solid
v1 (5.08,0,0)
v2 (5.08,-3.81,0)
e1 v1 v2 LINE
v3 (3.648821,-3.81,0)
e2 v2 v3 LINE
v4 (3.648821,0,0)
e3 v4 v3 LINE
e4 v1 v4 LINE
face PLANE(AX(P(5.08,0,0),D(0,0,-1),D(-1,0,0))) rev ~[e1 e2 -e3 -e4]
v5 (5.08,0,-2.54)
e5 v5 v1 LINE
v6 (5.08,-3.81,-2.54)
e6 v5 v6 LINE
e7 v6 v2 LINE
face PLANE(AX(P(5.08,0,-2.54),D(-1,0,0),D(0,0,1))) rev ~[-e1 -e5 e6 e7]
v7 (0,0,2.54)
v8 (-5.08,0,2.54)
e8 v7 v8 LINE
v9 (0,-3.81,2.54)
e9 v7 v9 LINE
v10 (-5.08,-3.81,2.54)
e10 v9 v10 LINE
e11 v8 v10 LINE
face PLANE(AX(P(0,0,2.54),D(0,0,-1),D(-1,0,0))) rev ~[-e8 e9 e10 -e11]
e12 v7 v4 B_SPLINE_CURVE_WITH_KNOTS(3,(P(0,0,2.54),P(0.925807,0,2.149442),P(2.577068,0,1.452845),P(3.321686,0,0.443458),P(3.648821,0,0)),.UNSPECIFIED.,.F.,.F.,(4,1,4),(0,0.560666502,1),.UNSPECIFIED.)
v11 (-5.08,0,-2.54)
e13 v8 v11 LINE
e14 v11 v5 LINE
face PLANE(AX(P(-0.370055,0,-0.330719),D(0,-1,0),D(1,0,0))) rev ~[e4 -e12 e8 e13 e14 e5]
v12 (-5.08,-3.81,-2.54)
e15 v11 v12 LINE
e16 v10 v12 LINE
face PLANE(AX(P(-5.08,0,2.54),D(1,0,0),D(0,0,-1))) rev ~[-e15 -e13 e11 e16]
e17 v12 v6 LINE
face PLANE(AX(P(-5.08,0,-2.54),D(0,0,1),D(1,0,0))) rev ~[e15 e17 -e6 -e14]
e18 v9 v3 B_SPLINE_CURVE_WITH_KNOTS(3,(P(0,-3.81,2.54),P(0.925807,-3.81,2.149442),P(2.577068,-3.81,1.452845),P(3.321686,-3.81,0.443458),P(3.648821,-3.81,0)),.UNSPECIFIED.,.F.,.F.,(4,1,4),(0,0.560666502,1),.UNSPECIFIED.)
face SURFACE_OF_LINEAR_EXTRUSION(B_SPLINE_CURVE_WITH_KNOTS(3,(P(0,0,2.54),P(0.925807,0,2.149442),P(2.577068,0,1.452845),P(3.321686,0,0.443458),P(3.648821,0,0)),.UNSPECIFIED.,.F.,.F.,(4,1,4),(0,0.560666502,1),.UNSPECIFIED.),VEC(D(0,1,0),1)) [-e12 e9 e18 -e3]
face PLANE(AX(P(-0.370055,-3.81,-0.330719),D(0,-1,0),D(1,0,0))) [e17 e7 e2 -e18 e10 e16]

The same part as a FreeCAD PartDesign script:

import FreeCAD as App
import Part
import Sketcher
from FreeCAD import Vector
Q = App.Units.Quantity

doc = App.newDocument("Part")
body = doc.addObject("PartDesign::Body", "Body")

sketch1 = body.newObject("Sketcher::SketchObject", "Sketch")
sketch1.AttachmentSupport = (doc.getObject("XZ_Plane"), [""])
sketch1.MapMode = "FlatFace"
sketch1.addGeometry([
    Part.LineSegment(Vector(-5.08, -2.54, 0), Vector(5.08, -2.54, 0)),
    Part.LineSegment(Vector(5.08, -2.54, 0), Vector(5.08, 0, 0)),
    Part.LineSegment(Vector(5.08, 0, 0), Vector(3.648821, 0, 0)),
    Part.BSplineCurve([Vector(0, 2.54, 0), Vector(0.925807, 2.149442, 0), Vector(2.577068, 1.452845, 0), Vector(3.321686, 0.443458, 0), Vector(3.648821, 0, 0)], [4, 1, 4], [0, 0.560666502, 1], False, 3, [1, 1, 1, 1, 1], False),
    Part.LineSegment(Vector(0, 2.54, 0), Vector(-5.08, 2.54, 0)),
    Part.LineSegment(Vector(-5.08, 2.54, 0), Vector(-5.08, -2.54, 0)),
], False)
sketch1.addConstraint([
    Sketcher.Constraint("Block", 3),
    Sketcher.Constraint("Coincident", 0, 2, 1, 1),
    Sketcher.Constraint("Coincident", 1, 2, 2, 1),
    Sketcher.Constraint("Coincident", 2, 2, 3, 2),
    Sketcher.Constraint("Coincident", 3, 1, 4, 1),
    Sketcher.Constraint("Coincident", 4, 2, 5, 1),
    Sketcher.Constraint("Coincident", 5, 2, 0, 1),
    Sketcher.Constraint("Horizontal", 0),
    Sketcher.Constraint("Vertical", 1),
    Sketcher.Constraint("Horizontal", 2),
    Sketcher.Constraint("Horizontal", 4),
    Sketcher.Constraint("Vertical", 5),
    Sketcher.Constraint("Symmetric", 0, 2, 4, 2, -1, 1),
    Sketcher.Constraint("Equal", 4, 5),
])
pad1 = body.newObject("PartDesign::Pad", "Pad")
pad1.Profile = sketch1
pad1.Length = Q("0.15 in")

doc.recompute()
